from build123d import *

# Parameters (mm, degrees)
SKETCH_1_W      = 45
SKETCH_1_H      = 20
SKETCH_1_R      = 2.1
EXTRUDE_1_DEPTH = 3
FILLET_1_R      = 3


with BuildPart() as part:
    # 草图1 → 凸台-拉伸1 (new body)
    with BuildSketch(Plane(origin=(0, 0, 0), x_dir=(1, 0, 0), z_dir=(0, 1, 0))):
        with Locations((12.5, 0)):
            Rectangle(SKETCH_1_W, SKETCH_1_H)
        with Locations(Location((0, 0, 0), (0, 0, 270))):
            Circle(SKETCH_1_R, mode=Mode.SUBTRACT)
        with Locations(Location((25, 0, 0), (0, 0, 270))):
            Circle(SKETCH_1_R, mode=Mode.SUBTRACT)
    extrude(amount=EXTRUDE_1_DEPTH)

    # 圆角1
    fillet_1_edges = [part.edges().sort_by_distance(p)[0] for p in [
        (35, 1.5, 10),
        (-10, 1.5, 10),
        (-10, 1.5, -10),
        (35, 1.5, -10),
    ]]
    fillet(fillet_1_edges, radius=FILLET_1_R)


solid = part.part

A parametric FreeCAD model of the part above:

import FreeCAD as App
import Part
import Sketcher
from FreeCAD import Vector
Q = App.Units.Quantity


def edges_at(feature, points):
    """Names of the edges that pass closest to the given points."""
    edges = feature.Shape.Edges
    near = lambda p: min(range(len(edges)), key=lambda i: edges[i].distToShape(Part.Vertex(*p))[0])
    return sorted({f"Edge{near(p) + 1}" for p in points})

doc = App.newDocument("Part")
body = doc.addObject("PartDesign::Body", "Body")

sketch1 = body.newObject("Sketcher::SketchObject", "Sketch")
sketch1.AttachmentSupport = (doc.getObject("XZ_Plane"), [""])
sketch1.MapMode = "FlatFace"
sketch1.addGeometry(Part.LineSegment(Vector(-10, -10, 0), Vector(-10, 10, 0)), False)
sketch1.addGeometry(Part.LineSegment(Vector(-10, 10, 0), Vector(35, 10, 0)), False)
sketch1.addGeometry(Part.LineSegment(Vector(35, 10, 0), Vector(35, -10, 0)), False)
sketch1.addGeometry(Part.LineSegment(Vector(35, -10, 0), Vector(-10, -10, 0)), False)
sketch1.addGeometry(Part.Circle(Vector(0, 0, 0), Vector(0, 0, 1), 2.1), False)
sketch1.addGeometry(Part.Circle(Vector(25, 0, 0), Vector(0, 0, 1), 2.1), False)
sketch1.addConstraint(Sketcher.Constraint("Coincident", 0, 2, 1, 1))
sketch1.addConstraint(Sketcher.Constraint("Coincident", 1, 2, 2, 1))
sketch1.addConstraint(Sketcher.Constraint("Coincident", 2, 2, 3, 1))
sketch1.addConstraint(Sketcher.Constraint("Coincident", 3, 2, 0, 1))
sketch1.addConstraint(Sketcher.Constraint("Vertical", 0))
sketch1.addConstraint(Sketcher.Constraint("Horizontal", 1))
sketch1.addConstraint(Sketcher.Constraint("Vertical", 2))
sketch1.addConstraint(Sketcher.Constraint("Horizontal", 3))
sketch1.addConstraint(Sketcher.Constraint("Coincident", 4, 3, -1, 1))
sketch1.addConstraint(Sketcher.Constraint("Equal", 4, 5))
sketch1.addConstraint(Sketcher.Constraint("PointOnObject", 5, 3, -1))
sketch1.addConstraint(Sketcher.Constraint("Diameter", 4, Q("4.2 mm")))
sketch1.addConstraint(Sketcher.Constraint("DistanceX", 1, 1, 1, 2, Q("45 mm")))
sketch1.addConstraint(Sketcher.Constraint("DistanceY", 0, 1, 0, 2, Q("20 mm")))
sketch1.addConstraint(Sketcher.Constraint("DistanceX", -1, 1, 5, 3, Q("25 mm")))
sketch1.addConstraint(Sketcher.Constraint("DistanceX", 0, 2, -1, 1, Q("10 mm")))
sketch1.addConstraint(Sketcher.Constraint("DistanceY", -1, 1, 0, 2, Q("10 mm")))
pad1 = body.newObject("PartDesign::Pad", "Pad")
pad1.Profile = sketch1
pad1.Length = 3
pad1.Reversed = True
doc.recompute()

fillet = body.newObject("PartDesign::Fillet", "Fillet")
fillet.Base = (pad1, edges_at(pad1, [
    (35, 1.5, 10),
    (-10, 1.5, 10),
    (-10, 1.5, -10),
    (35, 1.5, -10),
]))
fillet.Radius = 3

doc.recompute()
